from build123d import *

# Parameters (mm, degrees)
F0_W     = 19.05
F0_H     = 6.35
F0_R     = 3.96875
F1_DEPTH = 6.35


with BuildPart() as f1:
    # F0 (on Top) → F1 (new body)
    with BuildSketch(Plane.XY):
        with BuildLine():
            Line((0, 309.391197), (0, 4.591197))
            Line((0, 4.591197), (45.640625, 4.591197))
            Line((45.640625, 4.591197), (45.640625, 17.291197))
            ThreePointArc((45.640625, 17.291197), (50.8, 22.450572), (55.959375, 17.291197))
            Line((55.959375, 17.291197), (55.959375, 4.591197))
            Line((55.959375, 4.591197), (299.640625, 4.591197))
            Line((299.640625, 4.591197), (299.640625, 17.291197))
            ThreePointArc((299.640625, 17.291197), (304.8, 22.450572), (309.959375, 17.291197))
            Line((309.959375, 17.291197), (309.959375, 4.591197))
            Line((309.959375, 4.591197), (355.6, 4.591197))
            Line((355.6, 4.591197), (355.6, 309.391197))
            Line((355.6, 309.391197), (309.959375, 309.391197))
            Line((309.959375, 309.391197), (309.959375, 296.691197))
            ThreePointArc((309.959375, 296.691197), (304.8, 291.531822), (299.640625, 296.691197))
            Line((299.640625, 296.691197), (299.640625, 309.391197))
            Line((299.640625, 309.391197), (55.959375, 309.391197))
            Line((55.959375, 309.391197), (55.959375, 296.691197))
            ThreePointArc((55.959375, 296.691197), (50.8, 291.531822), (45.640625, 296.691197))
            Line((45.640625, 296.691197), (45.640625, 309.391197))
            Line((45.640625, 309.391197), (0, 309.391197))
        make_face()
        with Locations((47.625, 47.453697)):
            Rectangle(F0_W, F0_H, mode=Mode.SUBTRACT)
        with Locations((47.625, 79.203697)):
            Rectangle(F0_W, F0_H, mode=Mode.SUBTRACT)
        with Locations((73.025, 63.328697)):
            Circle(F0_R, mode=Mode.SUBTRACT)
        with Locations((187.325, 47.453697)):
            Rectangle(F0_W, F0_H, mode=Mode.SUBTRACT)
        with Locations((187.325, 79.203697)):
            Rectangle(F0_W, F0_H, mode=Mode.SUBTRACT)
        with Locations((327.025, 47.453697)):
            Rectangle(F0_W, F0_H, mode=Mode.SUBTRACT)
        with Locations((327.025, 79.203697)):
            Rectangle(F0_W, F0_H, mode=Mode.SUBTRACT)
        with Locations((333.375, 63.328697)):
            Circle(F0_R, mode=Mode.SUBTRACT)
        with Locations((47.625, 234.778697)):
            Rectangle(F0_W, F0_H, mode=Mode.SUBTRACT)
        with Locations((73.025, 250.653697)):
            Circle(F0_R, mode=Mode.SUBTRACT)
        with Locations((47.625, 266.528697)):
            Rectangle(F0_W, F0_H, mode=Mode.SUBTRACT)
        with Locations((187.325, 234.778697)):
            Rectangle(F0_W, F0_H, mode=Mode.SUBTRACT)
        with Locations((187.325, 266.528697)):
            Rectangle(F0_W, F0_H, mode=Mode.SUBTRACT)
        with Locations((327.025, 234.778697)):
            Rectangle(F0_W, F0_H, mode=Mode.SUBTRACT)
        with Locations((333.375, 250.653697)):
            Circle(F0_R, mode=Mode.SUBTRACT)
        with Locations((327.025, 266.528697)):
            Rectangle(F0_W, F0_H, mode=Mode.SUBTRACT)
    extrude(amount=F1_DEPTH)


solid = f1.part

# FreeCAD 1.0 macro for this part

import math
import FreeCAD as App
import Part
import Sketcher

V = App.Vector
Q = App.Units.Quantity


def add_polygon(sketch, points):
    """Adds a closed chain of lines whose ends are joined by coincident constraints."""
    first, n = sketch.GeometryCount, len(points)
    for a, b in zip(points, points[1:] + points[:1]):
        sketch.addGeometry(Part.LineSegment(App.Vector(*a, 0), App.Vector(*b, 0)), False)
    for i in range(n):
        sketch.addConstraint(Sketcher.Constraint("Coincident", first + i, 2, first + (i + 1) % n, 1))

doc = App.newDocument("Part")
params = doc.addObject("Spreadsheet::Sheet", "Params")
for row, (alias, value) in enumerate([
    ("sketch1_height", "12 in"),
    ("sketch1_diameter", "0.3125 in"),
    ("sketch1_height2", "0.5 in"),
    ("sketch1_radius", "0.203125 in"),
    ("sketch1_width", "0.75 in"),
    ("pad1_length", "0.25 in"),
], start=1):
    params.set(f"A{row}", alias)
    params.set(f"B{row}", "=" + value)
    params.setAlias(f"B{row}", alias)

body = doc.addObject("PartDesign::Body", "Body")

sketch1 = doc.addObject("Sketcher::SketchObject", "Sketch")
body.addObject(sketch1)
sketch1.AttachmentSupport = (doc.XY_Plane, [""])
sketch1.MapMode = "FlatFace"
sketch1.addGeometry(Part.LineSegment(V(0, 309.391197, 0), V(0, 4.591197, 0)), False)
sketch1.addGeometry(Part.LineSegment(V(0, 4.591197, 0), V(45.640625, 4.591197, 0)), False)
sketch1.addGeometry(Part.LineSegment(V(45.640625, 4.591197, 0), V(45.640625, 17.291197, 0)), False)
sketch1.addGeometry(Part.ArcOfCircle(Part.Circle(V(50.8, 17.291197, 0), V(0, 0, 1), 5.159375), math.radians(0), math.radians(180)), False)
sketch1.addGeometry(Part.LineSegment(V(55.959375, 17.291197, 0), V(55.959375, 4.591197, 0)), False)
sketch1.addGeometry(Part.LineSegment(V(55.959375, 4.591197, 0), V(299.640625, 4.591197, 0)), False)
sketch1.addGeometry(Part.LineSegment(V(299.640625, 4.591197, 0), V(299.640625, 17.291197, 0)), False)
sketch1.addGeometry(Part.ArcOfCircle(Part.Circle(V(304.8, 17.291197, 0), V(0, 0, 1), 5.159375), math.radians(0), math.radians(180)), False)
sketch1.addGeometry(Part.LineSegment(V(309.959375, 17.291197, 0), V(309.959375, 4.591197, 0)), False)
sketch1.addGeometry(Part.LineSegment(V(309.959375, 4.591197, 0), V(355.6, 4.591197, 0)), False)
sketch1.addGeometry(Part.LineSegment(V(355.6, 4.591197, 0), V(355.6, 309.391197, 0)), False)
sketch1.addGeometry(Part.LineSegment(V(355.6, 309.391197, 0), V(309.959375, 309.391197, 0)), False)
sketch1.addGeometry(Part.LineSegment(V(309.959375, 309.391197, 0), V(309.959375, 296.691197, 0)), False)
sketch1.addGeometry(Part.ArcOfCircle(Part.Circle(V(304.8, 296.691197, 0), V(0, 0, 1), 5.159375), math.radians(180), math.radians(360)), False)
sketch1.addGeometry(Part.LineSegment(V(299.640625, 296.691197, 0), V(299.640625, 309.391197, 0)), False)
sketch1.addGeometry(Part.LineSegment(V(299.640625, 309.391197, 0), V(55.959375, 309.391197, 0)), False)
sketch1.addGeometry(Part.LineSegment(V(55.959375, 309.391197, 0), V(55.959375, 296.691197, 0)), False)
sketch1.addGeometry(Part.ArcOfCircle(Part.Circle(V(50.8, 296.691197, 0), V(0, 0, 1), 5.159375), math.radians(180), math.radians(360)), False)
sketch1.addGeometry(Part.LineSegment(V(45.640625, 296.691197, 0), V(45.640625, 309.391197, 0)), False)
sketch1.addGeometry(Part.LineSegment(V(45.640625, 309.391197, 0), V(0, 309.391197, 0)), False)
add_polygon(sketch1, [(57.15, 44.278697), (38.1, 44.278697), (38.1, 50.628697), (57.15, 50.628697)])
sketch1.addGeometry(Part.Circle(V(73.025, 63.328697, 0), V(0, 0, 1), 3.96875), False)
add_polygon(sketch1, [(57.15, 76.028697), (38.1, 76.028697), (38.1, 82.378697), (57.15, 82.378697)])
add_polygon(sketch1, [(196.85, 44.278697), (177.8, 44.278697), (177.8, 50.628697), (196.85, 50.628697)])
add_polygon(sketch1, [(196.85, 76.028697), (177.8, 76.028697), (177.8, 82.378697), (196.85, 82.378697)])
add_polygon(sketch1, [(336.55, 44.278697), (317.5, 44.278697), (317.5, 50.628697), (336.55, 50.628697)])
sketch1.addGeometry(Part.Circle(V(333.375, 63.328697, 0), V(0, 0, 1), 3.96875), False)
add_polygon(sketch1, [(336.55, 76.028697), (317.5, 76.028697), (317.5, 82.378697), (336.55, 82.378697)])
add_polygon(sketch1, [(57.15, 231.603697), (38.1, 231.603697), (38.1, 237.953697), (57.15, 237.953697)])
sketch1.addGeometry(Part.Circle(V(73.025, 250.653697, 0), V(0, 0, 1), 3.96875), False)
add_polygon(sketch1, [(57.15, 263.353697), (38.1, 263.353697), (38.1, 269.703697), (57.15, 269.703697)])
add_polygon(sketch1, [(196.85, 231.603697), (177.8, 231.603697), (177.8, 237.953697), (196.85, 237.953697)])
add_polygon(sketch1, [(196.85, 263.353697), (177.8, 263.353697), (177.8, 269.703697), (196.85, 269.703697)])
add_polygon(sketch1, [(336.55, 231.603697), (317.5, 231.603697), (317.5, 237.953697), (336.55, 237.953697)])
sketch1.addGeometry(Part.Circle(V(333.375, 250.653697, 0), V(0, 0, 1), 3.96875), False)
add_polygon(sketch1, [(336.55, 263.353697), (317.5, 263.353697), (317.5, 269.703697), (336.55, 269.703697)])
sketch1.addConstraint([
    Sketcher.Constraint("Coincident", 0, 2, 1, 1),
    Sketcher.Constraint("Coincident", 1, 2, 2, 1),
    Sketcher.Constraint("Tangent", 2, 2, 3, 2),
    Sketcher.Constraint("Tangent", 3, 1, 4, 1),
    Sketcher.Constraint("Coincident", 4, 2, 5, 1),
    Sketcher.Constraint("Coincident", 5, 2, 6, 1),
    Sketcher.Constraint("Tangent", 6, 2, 7, 2),
    Sketcher.Constraint("Tangent", 7, 1, 8, 1),
    Sketcher.Constraint("Coincident", 8, 2, 9, 1),
    Sketcher.Constraint("Coincident", 9, 2, 10, 1),
    Sketcher.Constraint("Coincident", 10, 2, 11, 1),
    Sketcher.Constraint("Coincident", 11, 2, 12, 1),
    Sketcher.Constraint("Tangent", 12, 2, 13, 2),
    Sketcher.Constraint("Tangent", 13, 1, 14, 1),
    Sketcher.Constraint("Coincident", 14, 2, 15, 1),
    Sketcher.Constraint("Coincident", 15, 2, 16, 1),
    Sketcher.Constraint("Tangent", 16, 2, 17, 2),
    Sketcher.Constraint("Tangent", 17, 1, 18, 1),
    Sketcher.Constraint("Coincident", 18, 2, 19, 1),
    Sketcher.Constraint("Coincident", 19, 2, 0, 1),
    Sketcher.Constraint("Vertical", 0),
    Sketcher.Constraint("Horizontal", 1),
    Sketcher.Constraint("Vertical", 2),
    Sketcher.Constraint("Vertical", 4),
    Sketcher.Constraint("Horizontal", 5),
    Sketcher.Constraint("Vertical", 6),
    Sketcher.Constraint("Vertical", 8),
    Sketcher.Constraint("Horizontal", 9),
    Sketcher.Constraint("Vertical", 10),
    Sketcher.Constraint("Horizontal", 11),
    Sketcher.Constraint("Vertical", 12),
    Sketcher.Constraint("Vertical", 14),
    Sketcher.Constraint("Horizontal", 15),
    Sketcher.Constraint("Vertical", 16),
    Sketcher.Constraint("Vertical", 18),
    Sketcher.Constraint("Horizontal", 19),
    Sketcher.Constraint("Horizontal", 20),
    Sketcher.Constraint("Vertical", 21),
    Sketcher.Constraint("Horizontal", 22),
    Sketcher.Constraint("Vertical", 23),
    Sketcher.Constraint("Horizontal", 25),
    Sketcher.Constraint("Vertical", 26),
    Sketcher.Constraint("Horizontal", 27),
    Sketcher.Constraint("Vertical", 28),
    Sketcher.Constraint("Horizontal", 29),
    Sketcher.Constraint("Vertical", 30),
    Sketcher.Constraint("Horizontal", 31),
    Sketcher.Constraint("Vertical", 32),
    Sketcher.Constraint("Horizontal", 33),
    Sketcher.Constraint("Vertical", 34),
    Sketcher.Constraint("Horizontal", 35),
    Sketcher.Constraint("Vertical", 36),
    Sketcher.Constraint("Horizontal", 37),
    Sketcher.Constraint("Vertical", 38),
    Sketcher.Constraint("Horizontal", 39),
    Sketcher.Constraint("Vertical", 40),
    Sketcher.Constraint("Horizontal", 42),
    Sketcher.Constraint("Vertical", 43),
    Sketcher.Constraint("Horizontal", 44),
    Sketcher.Constraint("Vertical", 45),
    Sketcher.Constraint("Horizontal", 46),
    Sketcher.Constraint("Vertical", 47),
    Sketcher.Constraint("Horizontal", 48),
    Sketcher.Constraint("Vertical", 49),
    Sketcher.Constraint("Horizontal", 51),
    Sketcher.Constraint("Vertical", 52),
    Sketcher.Constraint("Horizontal", 53),
    Sketcher.Constraint("Vertical", 54),
    Sketcher.Constraint("Horizontal", 55),
    Sketcher.Constraint("Vertical", 56),
    Sketcher.Constraint("Horizontal", 57),
    Sketcher.Constraint("Vertical", 58),
    Sketcher.Constraint("Horizontal", 59),
    Sketcher.Constraint("Vertical", 60),
    Sketcher.Constraint("Horizontal", 61),
    Sketcher.Constraint("Vertical", 62),
    Sketcher.Constraint("Horizontal", 63),
    Sketcher.Constraint("Vertical", 64),
    Sketcher.Constraint("Horizontal", 65),
    Sketcher.Constraint("Vertical", 66),
    Sketcher.Constraint("Horizontal", 68),
    Sketcher.Constraint("Vertical", 69),
    Sketcher.Constraint("Horizontal", 70),
    Sketcher.Constraint("Vertical", 71),
    Sketcher.Constraint("Equal", 3, 7),
    Sketcher.Constraint("Equal", 7, 13),
    Sketcher.Constraint("Equal", 13, 17),
    Sketcher.Constraint("Equal", 24, 41),
    Sketcher.Constraint("Equal", 41, 50),
    Sketcher.Constraint("Equal", 50, 67),
    Sketcher.Constraint("PointOnObject", 0, 2, -2),
    Sketcher.Constraint("Horizontal", 3, 3, 7, 3),
    Sketcher.Constraint("Horizontal", 13, 3, 17, 3),
    Sketcher.Constraint("Horizontal", 24, 3, 41, 3),
    Sketcher.Constraint("Horizontal", 50, 3, 67, 3),
    Sketcher.Constraint("Horizontal", 1, 2, 4, 2),
    Sketcher.Constraint("Horizontal", 5, 2, 8, 2),
    Sketcher.Constraint("Horizontal", 11, 2, 14, 2),
    Sketcher.Constraint("Horizontal", 15, 2, 18, 2),
    Sketcher.Constraint("Horizontal", 23, 2, 29, 2),
    Sketcher.Constraint("Horizontal", 22, 2, 30, 2),
    Sketcher.Constraint("Horizontal", 28, 2, 33, 2),
    Sketcher.Constraint("Horizontal", 27, 2, 34, 2),
    Sketcher.Constraint("Horizontal", 32, 2, 37, 2),
    Sketcher.Constraint("Horizontal", 31, 2, 38, 2),
    Sketcher.Constraint("Horizontal", 36, 2, 42, 2),
    Sketcher.Constraint("Horizontal", 35, 2, 43, 2),
    Sketcher.Constraint("Horizontal", 49, 2, 55, 2),
    Sketcher.Constraint("Horizontal", 48, 2, 56, 2),
    Sketcher.Constraint("Horizontal", 54, 2, 59, 2),
    Sketcher.Constraint("Horizontal", 53, 2, 60, 2),
    Sketcher.Constraint("Horizontal", 58, 2, 63, 2),
    Sketcher.Constraint("Horizontal", 57, 2, 64, 2),
    Sketcher.Constraint("Horizontal", 62, 2, 68, 2),
    Sketcher.Constraint("Horizontal", 61, 2, 69, 2),
    Sketcher.Constraint("Vertical", 7, 3, 13, 3),
    Sketcher.Constraint("Vertical", 3, 3, 17, 3),
    Sketcher.Constraint("Vertical", 24, 3, 50, 3),
    Sketcher.Constraint("Vertical", 41, 3, 67, 3),
    Sketcher.Constraint("Vertical", 21, 2, 25, 2),
    Sketcher.Constraint("Vertical", 23, 2, 27, 2),
    Sketcher.Constraint("Vertical", 30, 2, 33, 2),
    Sketcher.Constraint("Vertical", 32, 2, 35, 2),
    Sketcher.Constraint("Vertical", 38, 2, 42, 2),
    Sketcher.Constraint("Vertical", 40, 2, 44, 2),
    Sketcher.Constraint("Vertical", 26, 2, 46, 2),
    Sketcher.Constraint("Vertical", 28, 2, 48, 2),
    Sketcher.Constraint("Vertical", 47, 2, 51, 2),
    Sketcher.Constraint("Vertical", 49, 2, 53, 2),
    Sketcher.Constraint("Vertical", 34, 2, 55, 2),
    Sketcher.Constraint("Vertical", 36, 2, 57, 2),
    Sketcher.Constraint("Vertical", 56, 2, 59, 2),
    Sketcher.Constraint("Vertical", 58, 2, 61, 2),
    Sketcher.Constraint("Vertical", 43, 2, 63, 2),
    Sketcher.Constraint("Vertical", 45, 2, 65, 2),
    Sketcher.Constraint("Vertical", 64, 2, 68, 2),
    Sketcher.Constraint("Vertical", 66, 2, 70, 2),
    Sketcher.Constraint("Equal", 1, 9),
    Sketcher.Constraint("Equal", 27, 29),
    Sketcher.Constraint("Equal", 35, 37),
    Sketcher.Constraint("Equal", 8, 12),
    Sketcher.Constraint("Equal", 23, 26),
    Sketcher.Constraint("Equal", 45, 47),
    Sketcher.Constraint("Equal", 49, 52),
    Sketcher.Constraint("DistanceY", 0, 2, 0, 1, Q("12 in")),
    Sketcher.Constraint("Diameter", 24, Q("0.3125 in")),
    Sketcher.Constraint("DistanceY", 2, 1, 2, 2, Q("0.5 in")),
    Sketcher.Constraint("DistanceX", -1, 1, 3, 3, Q("2 in")),
    Sketcher.Constraint("DistanceX", -1, 1, 7, 3, Q("12 in")),
    Sketcher.Constraint("DistanceX", -1, 1, 29, 2, Q("7 in")),
    Sketcher.Constraint("Radius", 3, Q("0.203125 in")),
    Sketcher.Constraint("DistanceX", 20, 2, 20, 1, Q("0.75 in")),
    Sketcher.Constraint("DistanceY", 21, 1, 21, 2, Q("0.25 in")),
    Sketcher.Constraint("DistanceX", -1, 1, 20, 2, Q("1.5 in")),
    Sketcher.Constraint("DistanceX", -1, 1, 37, 2, Q("12.5 in")),
    Sketcher.Constraint("DistanceX", -1, 1, 24, 3, Q("2.875 in")),
    Sketcher.Constraint("DistanceX", -1, 1, 41, 3, Q("13.125 in")),
    Sketcher.Constraint("DistanceY", -1, 1, 3, 3, 17.291197),
    Sketcher.Constraint("DistanceY", -1, 1, 24, 3, 63.328697),
    Sketcher.Constraint("DistanceY", -1, 1, 50, 3, 250.653697),
    Sketcher.Constraint("DistanceY", -1, 1, 20, 2, 44.278697),
    Sketcher.Constraint("DistanceY", -1, 1, 25, 2, 76.028697),
    Sketcher.Constraint("DistanceY", -1, 1, 46, 2, 231.603697),
    Sketcher.Constraint("DistanceY", -1, 1, 51, 2, 263.353697),
])
sketch1.setExpression("Constraints[192]", "Params.sketch1_height")
sketch1.setExpression("Constraints[193]", "Params.sketch1_diameter")
sketch1.setExpression("Constraints[194]", "Params.sketch1_height2")
sketch1.setExpression("Constraints[198]", "Params.sketch1_radius")
sketch1.setExpression("Constraints[199]", "Params.sketch1_width")
pad1 = doc.addObject("PartDesign::Pad", "Pad")
body.addObject(pad1)
pad1.Profile = sketch1
pad1.setExpression("Length", "Params.pad1_length")

doc.recompute()
